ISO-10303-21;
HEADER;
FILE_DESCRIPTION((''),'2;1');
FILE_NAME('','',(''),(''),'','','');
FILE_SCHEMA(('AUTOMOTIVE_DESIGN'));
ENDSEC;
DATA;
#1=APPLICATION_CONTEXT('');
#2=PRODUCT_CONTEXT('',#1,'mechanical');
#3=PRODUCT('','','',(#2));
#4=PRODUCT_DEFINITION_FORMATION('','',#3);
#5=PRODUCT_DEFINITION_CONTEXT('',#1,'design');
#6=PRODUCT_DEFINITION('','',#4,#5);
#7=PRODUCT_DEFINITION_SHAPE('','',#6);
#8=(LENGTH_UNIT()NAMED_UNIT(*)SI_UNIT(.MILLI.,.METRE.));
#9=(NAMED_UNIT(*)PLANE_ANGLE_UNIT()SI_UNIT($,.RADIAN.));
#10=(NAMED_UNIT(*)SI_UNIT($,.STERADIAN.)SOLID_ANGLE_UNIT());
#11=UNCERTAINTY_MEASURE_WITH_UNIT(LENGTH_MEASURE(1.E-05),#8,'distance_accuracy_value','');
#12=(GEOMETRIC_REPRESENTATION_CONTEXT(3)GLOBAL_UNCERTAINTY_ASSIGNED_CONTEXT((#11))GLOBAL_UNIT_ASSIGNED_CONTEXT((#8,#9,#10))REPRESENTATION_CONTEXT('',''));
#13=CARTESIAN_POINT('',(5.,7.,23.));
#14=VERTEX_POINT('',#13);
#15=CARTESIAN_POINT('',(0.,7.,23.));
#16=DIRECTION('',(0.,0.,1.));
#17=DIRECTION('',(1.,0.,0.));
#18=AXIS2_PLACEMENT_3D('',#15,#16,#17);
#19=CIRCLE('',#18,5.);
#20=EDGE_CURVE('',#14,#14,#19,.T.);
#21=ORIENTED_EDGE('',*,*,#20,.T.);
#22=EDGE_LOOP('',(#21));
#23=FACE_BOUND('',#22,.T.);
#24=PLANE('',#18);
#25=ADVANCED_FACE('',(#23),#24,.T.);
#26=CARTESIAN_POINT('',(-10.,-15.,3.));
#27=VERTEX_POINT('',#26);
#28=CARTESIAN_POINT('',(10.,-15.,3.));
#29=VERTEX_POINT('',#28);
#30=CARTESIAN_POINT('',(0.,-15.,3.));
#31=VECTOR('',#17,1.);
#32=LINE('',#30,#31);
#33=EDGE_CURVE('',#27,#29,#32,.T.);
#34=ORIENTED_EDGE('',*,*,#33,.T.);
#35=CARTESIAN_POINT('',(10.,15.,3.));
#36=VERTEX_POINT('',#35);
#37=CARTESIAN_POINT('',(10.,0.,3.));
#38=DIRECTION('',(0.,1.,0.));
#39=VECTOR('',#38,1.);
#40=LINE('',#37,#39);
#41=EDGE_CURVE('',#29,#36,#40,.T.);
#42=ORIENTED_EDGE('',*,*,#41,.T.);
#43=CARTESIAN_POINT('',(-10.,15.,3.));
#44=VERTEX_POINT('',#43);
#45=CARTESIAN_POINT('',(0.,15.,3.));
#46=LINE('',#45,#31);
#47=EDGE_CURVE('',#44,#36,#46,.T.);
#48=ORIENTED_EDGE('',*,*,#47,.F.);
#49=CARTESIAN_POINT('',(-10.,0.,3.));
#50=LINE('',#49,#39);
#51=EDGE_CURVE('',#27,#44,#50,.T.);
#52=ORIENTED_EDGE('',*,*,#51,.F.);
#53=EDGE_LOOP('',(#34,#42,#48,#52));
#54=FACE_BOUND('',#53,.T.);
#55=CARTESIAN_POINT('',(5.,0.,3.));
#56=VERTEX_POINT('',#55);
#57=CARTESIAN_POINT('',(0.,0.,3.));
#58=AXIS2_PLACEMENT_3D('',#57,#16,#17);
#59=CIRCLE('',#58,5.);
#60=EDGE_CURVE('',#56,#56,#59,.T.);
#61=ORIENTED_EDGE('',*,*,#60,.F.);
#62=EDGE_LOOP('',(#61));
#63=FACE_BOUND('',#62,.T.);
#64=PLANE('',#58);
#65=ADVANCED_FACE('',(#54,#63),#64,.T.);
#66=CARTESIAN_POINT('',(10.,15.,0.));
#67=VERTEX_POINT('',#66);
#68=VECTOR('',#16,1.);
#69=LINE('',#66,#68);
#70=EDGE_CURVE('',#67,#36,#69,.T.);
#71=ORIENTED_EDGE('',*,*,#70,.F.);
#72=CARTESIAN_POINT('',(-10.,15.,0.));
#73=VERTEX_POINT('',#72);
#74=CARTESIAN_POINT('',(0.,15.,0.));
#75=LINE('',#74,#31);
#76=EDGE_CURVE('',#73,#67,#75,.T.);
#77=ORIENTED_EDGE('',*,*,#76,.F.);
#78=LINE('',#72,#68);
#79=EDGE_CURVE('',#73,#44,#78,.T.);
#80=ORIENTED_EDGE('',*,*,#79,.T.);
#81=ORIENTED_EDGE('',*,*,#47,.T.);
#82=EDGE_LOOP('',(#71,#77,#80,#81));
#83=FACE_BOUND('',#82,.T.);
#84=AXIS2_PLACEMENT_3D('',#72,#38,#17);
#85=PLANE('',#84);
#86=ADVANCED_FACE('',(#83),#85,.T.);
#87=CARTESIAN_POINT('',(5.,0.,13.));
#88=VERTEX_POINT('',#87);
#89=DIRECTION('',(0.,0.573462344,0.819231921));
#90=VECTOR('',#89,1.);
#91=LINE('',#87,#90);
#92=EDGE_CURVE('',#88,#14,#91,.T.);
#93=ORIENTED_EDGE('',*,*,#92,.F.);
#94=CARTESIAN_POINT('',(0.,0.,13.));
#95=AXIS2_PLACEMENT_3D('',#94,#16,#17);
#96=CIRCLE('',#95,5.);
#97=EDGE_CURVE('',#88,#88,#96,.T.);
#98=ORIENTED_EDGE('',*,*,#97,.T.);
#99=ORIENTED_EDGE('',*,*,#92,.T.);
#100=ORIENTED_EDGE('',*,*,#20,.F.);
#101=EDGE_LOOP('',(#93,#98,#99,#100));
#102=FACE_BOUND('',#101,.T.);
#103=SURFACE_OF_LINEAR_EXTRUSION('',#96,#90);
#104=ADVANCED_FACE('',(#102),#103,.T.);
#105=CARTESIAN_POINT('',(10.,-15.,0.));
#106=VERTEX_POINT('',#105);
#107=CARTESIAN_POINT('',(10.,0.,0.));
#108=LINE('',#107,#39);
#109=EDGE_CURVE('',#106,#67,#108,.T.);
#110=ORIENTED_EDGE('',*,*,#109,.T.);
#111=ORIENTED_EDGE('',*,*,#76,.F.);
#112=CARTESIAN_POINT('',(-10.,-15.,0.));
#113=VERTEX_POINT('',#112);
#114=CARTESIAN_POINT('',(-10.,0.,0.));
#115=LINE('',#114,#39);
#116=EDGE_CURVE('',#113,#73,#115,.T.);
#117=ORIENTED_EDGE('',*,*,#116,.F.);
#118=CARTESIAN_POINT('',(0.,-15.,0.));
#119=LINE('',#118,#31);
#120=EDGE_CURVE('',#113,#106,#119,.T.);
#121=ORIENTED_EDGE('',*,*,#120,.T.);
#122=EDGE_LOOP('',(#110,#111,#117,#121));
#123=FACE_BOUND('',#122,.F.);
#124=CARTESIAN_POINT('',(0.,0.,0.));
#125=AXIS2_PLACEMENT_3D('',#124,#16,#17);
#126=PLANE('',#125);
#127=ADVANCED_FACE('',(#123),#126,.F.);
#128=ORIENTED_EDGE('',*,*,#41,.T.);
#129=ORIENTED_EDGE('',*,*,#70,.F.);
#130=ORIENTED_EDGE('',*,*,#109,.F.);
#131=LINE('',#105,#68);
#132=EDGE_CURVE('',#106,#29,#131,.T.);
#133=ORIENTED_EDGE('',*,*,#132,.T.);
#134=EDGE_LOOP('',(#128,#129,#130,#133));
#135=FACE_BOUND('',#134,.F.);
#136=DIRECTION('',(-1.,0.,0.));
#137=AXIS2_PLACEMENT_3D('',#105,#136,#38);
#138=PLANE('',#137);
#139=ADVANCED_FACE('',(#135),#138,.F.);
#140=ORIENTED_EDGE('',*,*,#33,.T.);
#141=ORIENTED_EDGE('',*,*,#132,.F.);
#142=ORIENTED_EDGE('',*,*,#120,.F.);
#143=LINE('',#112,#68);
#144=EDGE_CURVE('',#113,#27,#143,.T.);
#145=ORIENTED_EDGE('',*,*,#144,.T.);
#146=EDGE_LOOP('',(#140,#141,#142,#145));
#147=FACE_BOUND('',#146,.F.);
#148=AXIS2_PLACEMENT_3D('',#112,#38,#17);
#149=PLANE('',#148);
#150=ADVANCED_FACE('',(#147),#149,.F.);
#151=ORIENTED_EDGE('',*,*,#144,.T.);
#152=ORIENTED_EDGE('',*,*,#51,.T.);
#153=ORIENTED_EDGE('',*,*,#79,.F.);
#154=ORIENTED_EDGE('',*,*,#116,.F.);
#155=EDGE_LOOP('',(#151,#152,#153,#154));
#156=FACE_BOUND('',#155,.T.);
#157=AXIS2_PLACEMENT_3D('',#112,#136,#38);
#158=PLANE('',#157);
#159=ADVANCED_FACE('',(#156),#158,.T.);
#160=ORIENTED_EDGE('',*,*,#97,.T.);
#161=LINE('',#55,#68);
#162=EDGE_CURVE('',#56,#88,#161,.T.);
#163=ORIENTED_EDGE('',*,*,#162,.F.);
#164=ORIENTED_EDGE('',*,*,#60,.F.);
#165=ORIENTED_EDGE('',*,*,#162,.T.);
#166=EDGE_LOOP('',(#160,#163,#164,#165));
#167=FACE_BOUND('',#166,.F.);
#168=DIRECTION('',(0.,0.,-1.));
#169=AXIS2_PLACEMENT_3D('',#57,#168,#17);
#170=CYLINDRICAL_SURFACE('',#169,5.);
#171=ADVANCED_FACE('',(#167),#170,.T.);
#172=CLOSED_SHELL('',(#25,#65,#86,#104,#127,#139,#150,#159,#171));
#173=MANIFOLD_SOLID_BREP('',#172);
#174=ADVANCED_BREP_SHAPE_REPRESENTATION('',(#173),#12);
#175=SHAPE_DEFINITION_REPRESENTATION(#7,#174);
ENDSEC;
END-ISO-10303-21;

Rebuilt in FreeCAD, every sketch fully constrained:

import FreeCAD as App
import Part
import Sketcher

V = App.Vector
Q = App.Units.Quantity


def add_polygon(sketch, points):
    """Adds a closed chain of lines whose ends are joined by coincident constraints."""
    first, n = sketch.GeometryCount, len(points)
    for a, b in zip(points, points[1:] + points[:1]):
        sketch.addGeometry(Part.LineSegment(App.Vector(*a, 0), App.Vector(*b, 0)), False)
    for i in range(n):
        sketch.addConstraint(Sketcher.Constraint("Coincident", first + i, 2, first + (i + 1) % n, 1))

doc = App.newDocument("Part")
body = doc.addObject("PartDesign::Body", "Body")

# Sketch on XY plane
sketch1 = body.newObject("Sketcher::SketchObject", "Sketch")
sketch1.AttachmentSupport = (doc.getObject("XY_Plane"), [""])
sketch1.MapMode = "FlatFace"
add_polygon(sketch1, [(-10, 15), (-10, -15), (10, -15), (10, 15)])  # lines 0-3
sketch1.addConstraint(Sketcher.Constraint("Vertical", 0))
sketch1.addConstraint(Sketcher.Constraint("Horizontal", 1))
sketch1.addConstraint(Sketcher.Constraint("Vertical", 2))
sketch1.addConstraint(Sketcher.Constraint("Horizontal", 3))
sketch1.addConstraint(Sketcher.Constraint("Symmetric", 0, 2, 2, 2, -1, 1))
sketch1.addConstraint(Sketcher.Constraint("DistanceX", 1, 1, 1, 2, Q("20 mm")))
sketch1.addConstraint(Sketcher.Constraint("DistanceY", 0, 2, 0, 1, Q("30 mm")))
pad1 = body.newObject("PartDesign::Pad", "Pad")
pad1.Profile = sketch1
pad1.Length = 3

# Sketch on XY plane
sketch2 = body.newObject("Sketcher::SketchObject", "Sketch001")
sketch2.AttachmentSupport = (doc.getObject("XY_Plane"), [""])
sketch2.MapMode = "FlatFace"
sketch2.AttachmentOffset = App.Placement(V(0, 0, 3), App.Rotation())
sketch2.addGeometry(Part.Circle(V(0, 0, 0), V(0, 0, 1), 5), False)
sketch2.addConstraint(Sketcher.Constraint("Coincident", 0, 3, -1, 1))
sketch2.addConstraint(Sketcher.Constraint("Diameter", 0, Q("10 mm")))
pad2 = body.newObject("PartDesign::Pad", "Pad001")
pad2.Profile = sketch2
pad2.Length = 10

# Sketch on XY plane
sketch3 = body.newObject("Sketcher::SketchObject", "Sketch002")
sketch3.AttachmentSupport = (doc.getObject("XY_Plane"), [""])
sketch3.MapMode = "FlatFace"
sketch3.AttachmentOffset = App.Placement(V(0, 0, 13), App.Rotation())
sketch3.addGeometry(Part.Circle(V(0, 0, 0), V(0, 0, 1), 5), False)
sketch3.addConstraint(Sketcher.Constraint("Coincident", 0, 3, -1, 1))
sketch3.addConstraint(Sketcher.Constraint("Diameter", 0, Q("10 mm")))

# Sketch on an angled plane
sketch4 = body.newObject("Sketcher::SketchObject", "Sketch003")
sketch4.Placement = App.Placement(V(0, -6.107383, 4.275168), App.Rotation(V(0, -0.573462344, -0.819231921), V(1, 0, 0), V(0, -0.819231921, 0.573462344), "ZXY"))
sketch4.addGeometry(Part.LineSegment(V(-11, 0, 0), V(-23, 0, 0)), False)
sketch4.addConstraint(Sketcher.Constraint("Horizontal", 0))
sketch4.addConstraint(Sketcher.Constraint("PointOnObject", 0, 1, -1))
sketch4.addConstraint(Sketcher.Constraint("DistanceX", 0, 2, 0, 1, Q("12.206556 mm")))
sketch4.addConstraint(Sketcher.Constraint("DistanceX", 0, 2, -1, 1, Q("22.856571 mm")))
doc.recompute()

additivepipe = body.newObject("PartDesign::AdditivePipe", "AdditivePipe")
additivepipe.Profile = sketch3
additivepipe.Spine = (sketch4, ["Edge1"])

doc.recompute()
